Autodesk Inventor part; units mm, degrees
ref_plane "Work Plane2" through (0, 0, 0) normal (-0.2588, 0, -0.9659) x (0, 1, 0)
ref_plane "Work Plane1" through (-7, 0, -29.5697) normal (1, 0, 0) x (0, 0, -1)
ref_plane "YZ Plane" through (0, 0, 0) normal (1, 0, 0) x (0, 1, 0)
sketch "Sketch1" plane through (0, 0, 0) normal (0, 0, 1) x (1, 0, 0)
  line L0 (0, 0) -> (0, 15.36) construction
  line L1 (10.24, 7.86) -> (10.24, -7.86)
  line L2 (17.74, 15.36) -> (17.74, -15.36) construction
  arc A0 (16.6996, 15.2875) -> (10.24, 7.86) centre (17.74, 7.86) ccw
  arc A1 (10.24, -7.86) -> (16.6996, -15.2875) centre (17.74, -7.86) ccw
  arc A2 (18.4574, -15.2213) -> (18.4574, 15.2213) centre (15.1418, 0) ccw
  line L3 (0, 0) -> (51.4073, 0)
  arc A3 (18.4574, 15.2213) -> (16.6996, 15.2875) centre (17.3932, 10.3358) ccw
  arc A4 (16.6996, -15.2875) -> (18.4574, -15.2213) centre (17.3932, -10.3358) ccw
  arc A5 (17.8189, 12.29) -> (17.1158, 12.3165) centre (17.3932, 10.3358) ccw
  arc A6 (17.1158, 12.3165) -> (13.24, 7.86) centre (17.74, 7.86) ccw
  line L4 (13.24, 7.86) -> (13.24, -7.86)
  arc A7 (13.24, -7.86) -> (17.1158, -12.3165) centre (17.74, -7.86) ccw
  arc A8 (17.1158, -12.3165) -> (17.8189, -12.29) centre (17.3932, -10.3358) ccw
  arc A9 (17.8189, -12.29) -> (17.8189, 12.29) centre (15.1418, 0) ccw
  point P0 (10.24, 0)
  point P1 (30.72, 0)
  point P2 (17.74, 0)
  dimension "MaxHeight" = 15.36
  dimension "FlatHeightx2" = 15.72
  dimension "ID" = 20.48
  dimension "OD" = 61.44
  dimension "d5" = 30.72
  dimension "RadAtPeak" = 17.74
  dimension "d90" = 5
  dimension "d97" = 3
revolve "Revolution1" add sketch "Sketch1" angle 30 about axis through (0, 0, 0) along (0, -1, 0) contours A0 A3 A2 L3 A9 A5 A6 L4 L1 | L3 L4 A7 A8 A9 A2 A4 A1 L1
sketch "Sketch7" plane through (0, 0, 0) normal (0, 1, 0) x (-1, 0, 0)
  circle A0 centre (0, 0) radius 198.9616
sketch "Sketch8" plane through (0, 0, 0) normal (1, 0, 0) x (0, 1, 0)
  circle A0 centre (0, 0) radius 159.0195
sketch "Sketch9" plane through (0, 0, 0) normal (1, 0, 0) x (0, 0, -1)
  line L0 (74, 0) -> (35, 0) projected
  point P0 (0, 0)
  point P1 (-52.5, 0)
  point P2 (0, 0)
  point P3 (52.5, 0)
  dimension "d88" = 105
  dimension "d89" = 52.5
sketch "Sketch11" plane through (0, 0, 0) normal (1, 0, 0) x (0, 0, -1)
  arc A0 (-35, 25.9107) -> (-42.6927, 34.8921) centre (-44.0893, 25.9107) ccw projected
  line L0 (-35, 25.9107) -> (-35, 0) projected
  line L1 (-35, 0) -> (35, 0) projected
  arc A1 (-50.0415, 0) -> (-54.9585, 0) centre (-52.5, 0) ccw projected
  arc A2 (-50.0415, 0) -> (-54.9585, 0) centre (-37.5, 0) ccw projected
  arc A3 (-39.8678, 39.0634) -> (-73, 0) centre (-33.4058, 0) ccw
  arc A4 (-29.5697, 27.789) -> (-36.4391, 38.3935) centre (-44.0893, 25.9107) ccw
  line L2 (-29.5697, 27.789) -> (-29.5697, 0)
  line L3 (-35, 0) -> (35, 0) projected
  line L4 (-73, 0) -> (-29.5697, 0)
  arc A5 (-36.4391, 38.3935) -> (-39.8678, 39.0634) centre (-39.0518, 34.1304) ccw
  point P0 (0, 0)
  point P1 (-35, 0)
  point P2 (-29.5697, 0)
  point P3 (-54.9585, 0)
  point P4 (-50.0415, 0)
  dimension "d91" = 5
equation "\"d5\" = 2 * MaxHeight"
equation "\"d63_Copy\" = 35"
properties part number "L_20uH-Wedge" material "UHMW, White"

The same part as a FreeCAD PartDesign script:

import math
import FreeCAD as App
import Part
import Sketcher

doc = App.newDocument("Part")
body = doc.addObject("PartDesign::Body", "Body")

sketch1 = body.newObject("Sketcher::SketchObject", "Sketch")
sketch1.AttachmentSupport = (doc.getObject("XY_Plane"), [""])
sketch1.MapMode = "FlatFace"
sketch1.addGeometry([
    Part.ArcOfCircle(Part.Circle(App.Vector(17.7, 7.9, 0), App.Vector(0, 0, 1), 7.5), math.radians(98), math.radians(180)),
    Part.LineSegment(App.Vector(10.2, 7.9, 0), App.Vector(10.2, -7.9, 0)),
    Part.ArcOfCircle(Part.Circle(App.Vector(17.7, -7.9, 0), App.Vector(0, 0, 1), 7.5), math.radians(180), math.radians(262)),
    Part.ArcOfCircle(Part.Circle(App.Vector(17.4, -10.3, 0), App.Vector(0, 0, 1), 5), math.radians(-98), math.radians(-78)),
    Part.ArcOfCircle(Part.Circle(App.Vector(15.1, 0, 0), App.Vector(0, 0, 1), 15.6), math.radians(-78), math.radians(78)),
    Part.ArcOfCircle(Part.Circle(App.Vector(17.4, 10.3, 0), App.Vector(0, 0, 1), 5), math.radians(78), math.radians(98)),
    Part.ArcOfCircle(Part.Circle(App.Vector(15.1, 0, 0), App.Vector(0, 0, 1), 12.6), math.radians(-78), math.radians(78)),
    Part.ArcOfCircle(Part.Circle(App.Vector(17.4, -10.3, 0), App.Vector(0, 0, 1), 2), math.radians(-98), math.radians(-78)),
    Part.ArcOfCircle(Part.Circle(App.Vector(17.7, -7.9, 0), App.Vector(0, 0, 1), 4.5), math.radians(180), math.radians(262)),
    Part.LineSegment(App.Vector(13.2, -7.9, 0), App.Vector(13.2, 7.9, 0)),
    Part.ArcOfCircle(Part.Circle(App.Vector(17.7, 7.9, 0), App.Vector(0, 0, 1), 4.5), math.radians(98), math.radians(180)),
    Part.ArcOfCircle(Part.Circle(App.Vector(17.4, 10.3, 0), App.Vector(0, 0, 1), 2), math.radians(78), math.radians(98)),
], False)
sketch1.addConstraint([
    Sketcher.Constraint("Tangent", 0, 2, 1, 1),
    Sketcher.Constraint("Tangent", 1, 2, 2, 1),
    Sketcher.Constraint("Tangent", 2, 2, 3, 1),
    Sketcher.Constraint("Tangent", 3, 2, 4, 1),
    Sketcher.Constraint("Tangent", 4, 2, 5, 1),
    Sketcher.Constraint("Tangent", 5, 2, 0, 1),
    Sketcher.Constraint("Tangent", 6, 1, 7, 2),
    Sketcher.Constraint("Tangent", 7, 1, 8, 2),
    Sketcher.Constraint("Tangent", 8, 1, 9, 1),
    Sketcher.Constraint("Tangent", 9, 2, 10, 2),
    Sketcher.Constraint("Tangent", 10, 1, 11, 2),
    Sketcher.Constraint("Tangent", 11, 1, 6, 2),
    Sketcher.Constraint("Vertical", 1),
    Sketcher.Constraint("Vertical", 9),
    Sketcher.Constraint("Coincident", 6, 3, 4, 3),
    Sketcher.Constraint("Coincident", 7, 3, 3, 3),
    Sketcher.Constraint("Coincident", 8, 3, 2, 3),
    Sketcher.Constraint("Coincident", 10, 3, 0, 3),
    Sketcher.Constraint("Equal", 0, 2),
    Sketcher.Constraint("Equal", 3, 5),
    Sketcher.Constraint("Equal", 7, 11),
    Sketcher.Constraint("Symmetric", 3, 3, 5, 3, -1),
    Sketcher.Constraint("Radius", 3, 5.0),
    Sketcher.Constraint("Radius", 7, 2.0),
    Sketcher.Constraint("DistanceY", 1, 2, 1, 1, 15.72),
    Sketcher.Constraint("Radius", 0, 7.5),
    Sketcher.Constraint("DistanceX", -1, 1, 0, 3, 17.74),
    Sketcher.Constraint("Radius", 4, 15.5782),
    Sketcher.Constraint("DistanceY", 6, 1, -1, 1, 12.29),
])
revolution = body.newObject("PartDesign::Revolution", "Revolution")
revolution.Profile = sketch1
revolution.ReferenceAxis = (sketch1, ["V_Axis"])
revolution.Angle = 30
revolution.Reversed = True

doc.recompute()
